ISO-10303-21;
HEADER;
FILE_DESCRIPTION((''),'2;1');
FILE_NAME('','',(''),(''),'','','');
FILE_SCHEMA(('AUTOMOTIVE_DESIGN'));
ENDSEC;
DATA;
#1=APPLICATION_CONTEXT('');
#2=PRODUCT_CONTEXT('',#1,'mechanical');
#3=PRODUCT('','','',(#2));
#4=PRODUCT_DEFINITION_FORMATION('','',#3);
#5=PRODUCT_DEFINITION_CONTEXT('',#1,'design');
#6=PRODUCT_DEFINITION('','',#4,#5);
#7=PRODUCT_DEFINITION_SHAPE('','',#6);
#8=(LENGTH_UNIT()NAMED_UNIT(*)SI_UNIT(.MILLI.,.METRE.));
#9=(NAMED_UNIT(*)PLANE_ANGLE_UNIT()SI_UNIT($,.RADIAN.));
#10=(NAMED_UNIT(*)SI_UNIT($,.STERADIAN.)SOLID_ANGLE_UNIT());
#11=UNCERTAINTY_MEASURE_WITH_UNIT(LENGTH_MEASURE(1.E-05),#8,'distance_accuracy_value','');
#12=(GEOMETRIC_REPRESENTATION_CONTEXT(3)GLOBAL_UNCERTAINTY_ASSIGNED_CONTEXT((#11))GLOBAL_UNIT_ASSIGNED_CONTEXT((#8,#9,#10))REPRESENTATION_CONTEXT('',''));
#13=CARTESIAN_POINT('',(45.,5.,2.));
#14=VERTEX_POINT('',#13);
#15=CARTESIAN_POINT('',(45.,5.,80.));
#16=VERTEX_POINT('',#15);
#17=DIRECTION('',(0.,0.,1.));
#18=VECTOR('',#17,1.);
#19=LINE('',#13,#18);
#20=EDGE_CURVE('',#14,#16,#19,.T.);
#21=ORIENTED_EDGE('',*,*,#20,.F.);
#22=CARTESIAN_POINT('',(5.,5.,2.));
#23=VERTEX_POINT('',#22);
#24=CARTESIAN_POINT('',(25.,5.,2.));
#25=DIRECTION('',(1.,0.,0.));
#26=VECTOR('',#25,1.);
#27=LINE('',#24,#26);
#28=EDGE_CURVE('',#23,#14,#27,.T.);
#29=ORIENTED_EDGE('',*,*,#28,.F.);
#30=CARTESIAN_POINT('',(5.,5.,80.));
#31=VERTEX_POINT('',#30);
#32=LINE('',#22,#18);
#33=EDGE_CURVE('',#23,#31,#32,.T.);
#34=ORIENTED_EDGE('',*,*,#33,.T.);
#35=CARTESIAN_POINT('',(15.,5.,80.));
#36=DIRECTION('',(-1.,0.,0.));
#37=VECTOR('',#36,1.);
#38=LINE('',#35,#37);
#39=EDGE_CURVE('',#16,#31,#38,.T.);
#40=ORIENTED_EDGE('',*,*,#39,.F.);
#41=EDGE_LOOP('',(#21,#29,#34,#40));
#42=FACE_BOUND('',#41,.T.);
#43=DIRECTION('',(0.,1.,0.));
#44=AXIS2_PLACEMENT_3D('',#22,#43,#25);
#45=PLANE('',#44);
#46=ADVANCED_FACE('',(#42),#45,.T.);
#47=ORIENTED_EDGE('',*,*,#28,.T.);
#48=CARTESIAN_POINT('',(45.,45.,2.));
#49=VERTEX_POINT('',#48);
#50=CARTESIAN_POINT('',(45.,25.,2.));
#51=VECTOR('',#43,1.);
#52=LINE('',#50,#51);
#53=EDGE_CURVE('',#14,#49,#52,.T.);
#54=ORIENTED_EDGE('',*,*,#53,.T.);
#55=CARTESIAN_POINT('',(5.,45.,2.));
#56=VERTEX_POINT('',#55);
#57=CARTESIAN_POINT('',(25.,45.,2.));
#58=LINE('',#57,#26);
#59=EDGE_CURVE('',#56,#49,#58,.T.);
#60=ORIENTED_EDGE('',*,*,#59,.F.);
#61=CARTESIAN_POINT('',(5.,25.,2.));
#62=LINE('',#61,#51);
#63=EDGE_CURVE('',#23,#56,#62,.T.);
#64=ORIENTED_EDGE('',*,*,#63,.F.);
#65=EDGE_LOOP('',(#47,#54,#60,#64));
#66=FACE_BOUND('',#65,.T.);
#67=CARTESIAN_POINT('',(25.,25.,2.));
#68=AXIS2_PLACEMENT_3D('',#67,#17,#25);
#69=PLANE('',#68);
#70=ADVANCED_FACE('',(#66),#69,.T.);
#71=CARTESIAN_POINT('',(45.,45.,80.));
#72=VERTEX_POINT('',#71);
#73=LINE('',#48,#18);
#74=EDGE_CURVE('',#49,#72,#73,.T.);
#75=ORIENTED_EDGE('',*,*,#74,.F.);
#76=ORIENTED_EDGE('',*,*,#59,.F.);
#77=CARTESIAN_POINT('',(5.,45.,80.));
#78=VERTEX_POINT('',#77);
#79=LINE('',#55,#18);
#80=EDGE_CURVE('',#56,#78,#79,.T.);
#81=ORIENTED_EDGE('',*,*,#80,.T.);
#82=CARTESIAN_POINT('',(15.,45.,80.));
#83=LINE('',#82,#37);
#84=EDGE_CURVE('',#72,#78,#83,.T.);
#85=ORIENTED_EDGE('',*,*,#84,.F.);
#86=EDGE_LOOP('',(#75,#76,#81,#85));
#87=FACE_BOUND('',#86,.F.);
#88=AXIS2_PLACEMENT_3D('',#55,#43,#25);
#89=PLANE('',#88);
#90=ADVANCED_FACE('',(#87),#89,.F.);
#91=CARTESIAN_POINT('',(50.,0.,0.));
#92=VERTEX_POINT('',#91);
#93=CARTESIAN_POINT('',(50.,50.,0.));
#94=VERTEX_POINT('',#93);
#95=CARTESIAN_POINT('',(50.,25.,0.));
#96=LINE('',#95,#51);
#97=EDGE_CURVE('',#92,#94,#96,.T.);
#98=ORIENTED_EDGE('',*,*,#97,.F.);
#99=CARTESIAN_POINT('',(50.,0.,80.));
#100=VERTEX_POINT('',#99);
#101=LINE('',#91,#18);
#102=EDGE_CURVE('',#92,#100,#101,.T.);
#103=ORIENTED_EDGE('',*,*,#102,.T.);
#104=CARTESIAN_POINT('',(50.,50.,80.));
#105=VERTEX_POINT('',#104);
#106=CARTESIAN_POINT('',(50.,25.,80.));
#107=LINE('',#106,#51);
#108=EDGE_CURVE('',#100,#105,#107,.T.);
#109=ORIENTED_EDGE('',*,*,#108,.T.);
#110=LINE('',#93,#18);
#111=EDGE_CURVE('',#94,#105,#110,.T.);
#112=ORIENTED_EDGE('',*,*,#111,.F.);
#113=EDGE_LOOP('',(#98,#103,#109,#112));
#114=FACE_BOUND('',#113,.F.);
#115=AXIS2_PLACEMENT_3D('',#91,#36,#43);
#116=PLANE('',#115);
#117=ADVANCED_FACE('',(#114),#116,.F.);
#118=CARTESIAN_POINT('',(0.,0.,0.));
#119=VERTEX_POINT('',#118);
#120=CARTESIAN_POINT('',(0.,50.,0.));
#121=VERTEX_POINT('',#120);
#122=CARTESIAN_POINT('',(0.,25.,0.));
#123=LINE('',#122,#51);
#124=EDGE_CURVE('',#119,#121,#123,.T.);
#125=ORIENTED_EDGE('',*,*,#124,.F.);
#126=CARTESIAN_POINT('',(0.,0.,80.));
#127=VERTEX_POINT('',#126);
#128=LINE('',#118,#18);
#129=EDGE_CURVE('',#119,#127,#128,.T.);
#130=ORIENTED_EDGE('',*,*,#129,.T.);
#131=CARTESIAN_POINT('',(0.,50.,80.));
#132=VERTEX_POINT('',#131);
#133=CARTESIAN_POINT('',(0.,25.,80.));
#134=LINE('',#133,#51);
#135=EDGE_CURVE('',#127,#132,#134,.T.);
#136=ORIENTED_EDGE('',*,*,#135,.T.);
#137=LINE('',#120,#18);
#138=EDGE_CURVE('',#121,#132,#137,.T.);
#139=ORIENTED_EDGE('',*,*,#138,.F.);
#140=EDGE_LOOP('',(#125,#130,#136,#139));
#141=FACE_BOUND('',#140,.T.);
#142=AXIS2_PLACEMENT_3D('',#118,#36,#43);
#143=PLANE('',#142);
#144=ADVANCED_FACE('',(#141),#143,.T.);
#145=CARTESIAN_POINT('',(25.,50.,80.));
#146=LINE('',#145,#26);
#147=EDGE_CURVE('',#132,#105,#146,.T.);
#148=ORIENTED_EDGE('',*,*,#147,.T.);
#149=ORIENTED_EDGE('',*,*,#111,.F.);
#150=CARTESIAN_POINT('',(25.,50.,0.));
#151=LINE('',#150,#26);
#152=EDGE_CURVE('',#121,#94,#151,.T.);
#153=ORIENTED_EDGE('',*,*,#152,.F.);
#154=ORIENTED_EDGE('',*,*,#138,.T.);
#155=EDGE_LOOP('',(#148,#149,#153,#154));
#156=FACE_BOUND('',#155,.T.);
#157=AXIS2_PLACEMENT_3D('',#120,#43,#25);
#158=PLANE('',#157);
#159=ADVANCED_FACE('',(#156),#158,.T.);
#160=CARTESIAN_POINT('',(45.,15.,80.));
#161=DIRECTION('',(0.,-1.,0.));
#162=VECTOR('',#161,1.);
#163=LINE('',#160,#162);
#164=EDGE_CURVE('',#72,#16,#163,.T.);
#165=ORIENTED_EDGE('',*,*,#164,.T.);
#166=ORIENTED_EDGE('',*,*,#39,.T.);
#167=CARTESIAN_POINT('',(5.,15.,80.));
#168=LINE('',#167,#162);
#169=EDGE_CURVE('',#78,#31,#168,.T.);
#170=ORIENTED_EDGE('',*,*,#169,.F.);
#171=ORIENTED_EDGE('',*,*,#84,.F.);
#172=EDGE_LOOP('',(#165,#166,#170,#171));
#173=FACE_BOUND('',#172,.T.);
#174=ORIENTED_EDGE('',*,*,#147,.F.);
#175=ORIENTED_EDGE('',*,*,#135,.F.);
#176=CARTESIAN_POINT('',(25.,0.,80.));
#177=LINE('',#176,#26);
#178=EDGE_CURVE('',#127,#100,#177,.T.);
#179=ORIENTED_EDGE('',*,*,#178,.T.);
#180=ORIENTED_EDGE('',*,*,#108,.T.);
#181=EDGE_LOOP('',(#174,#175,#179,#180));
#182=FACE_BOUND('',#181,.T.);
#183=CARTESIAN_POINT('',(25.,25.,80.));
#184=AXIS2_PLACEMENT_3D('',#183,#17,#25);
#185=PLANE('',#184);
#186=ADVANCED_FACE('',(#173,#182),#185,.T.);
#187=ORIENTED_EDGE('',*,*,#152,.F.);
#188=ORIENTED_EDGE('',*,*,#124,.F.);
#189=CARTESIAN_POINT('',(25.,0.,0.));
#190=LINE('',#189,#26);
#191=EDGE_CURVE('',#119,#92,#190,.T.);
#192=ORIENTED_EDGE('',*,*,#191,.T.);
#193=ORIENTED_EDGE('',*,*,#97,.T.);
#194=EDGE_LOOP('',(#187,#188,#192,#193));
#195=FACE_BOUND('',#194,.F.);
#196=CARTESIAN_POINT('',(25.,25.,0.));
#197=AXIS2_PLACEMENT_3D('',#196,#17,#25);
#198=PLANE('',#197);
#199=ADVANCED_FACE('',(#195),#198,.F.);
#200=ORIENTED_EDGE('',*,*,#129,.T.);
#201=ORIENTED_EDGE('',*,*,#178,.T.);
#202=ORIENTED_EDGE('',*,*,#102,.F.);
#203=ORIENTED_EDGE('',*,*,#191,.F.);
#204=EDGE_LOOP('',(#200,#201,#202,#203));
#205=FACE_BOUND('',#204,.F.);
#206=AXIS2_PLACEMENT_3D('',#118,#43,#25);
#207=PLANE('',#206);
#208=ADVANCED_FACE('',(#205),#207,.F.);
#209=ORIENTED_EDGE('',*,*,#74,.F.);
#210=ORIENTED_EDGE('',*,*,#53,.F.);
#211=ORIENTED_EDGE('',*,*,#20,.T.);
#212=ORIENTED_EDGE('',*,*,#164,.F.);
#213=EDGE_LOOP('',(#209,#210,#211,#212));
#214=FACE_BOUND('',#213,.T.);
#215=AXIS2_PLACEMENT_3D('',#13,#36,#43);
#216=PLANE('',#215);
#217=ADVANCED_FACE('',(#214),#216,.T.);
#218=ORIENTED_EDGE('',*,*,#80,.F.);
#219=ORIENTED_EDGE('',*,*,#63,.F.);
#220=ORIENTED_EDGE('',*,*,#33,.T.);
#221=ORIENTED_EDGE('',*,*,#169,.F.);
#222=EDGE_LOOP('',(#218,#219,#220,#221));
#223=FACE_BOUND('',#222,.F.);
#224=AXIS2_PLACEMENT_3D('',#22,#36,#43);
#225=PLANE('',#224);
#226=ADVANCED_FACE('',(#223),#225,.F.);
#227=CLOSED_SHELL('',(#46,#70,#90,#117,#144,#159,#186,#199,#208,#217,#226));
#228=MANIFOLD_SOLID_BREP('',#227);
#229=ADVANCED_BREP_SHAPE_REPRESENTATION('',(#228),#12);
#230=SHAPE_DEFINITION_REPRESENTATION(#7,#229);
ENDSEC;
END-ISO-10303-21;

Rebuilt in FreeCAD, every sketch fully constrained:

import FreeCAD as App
import Part
import Sketcher

V = App.Vector


def add_polygon(sketch, points):
    """Adds a closed chain of lines whose ends are joined by coincident constraints."""
    first, n = sketch.GeometryCount, len(points)
    for a, b in zip(points, points[1:] + points[:1]):
        sketch.addGeometry(Part.LineSegment(App.Vector(*a, 0), App.Vector(*b, 0)), False)
    for i in range(n):
        sketch.addConstraint(Sketcher.Constraint("Coincident", first + i, 2, first + (i + 1) % n, 1))

doc = App.newDocument("Part")
body = doc.addObject("PartDesign::Body", "Body")

sketch1 = body.newObject("Sketcher::SketchObject", "Sketch")
sketch1.AttachmentSupport = (doc.getObject("XY_Plane"), [""])
sketch1.MapMode = "FlatFace"
sketch1.AttachmentOffset = App.Placement(V(0, 0, 2), App.Rotation())
add_polygon(sketch1, [(5, 45), (5, 5), (45, 5), (45, 45)])
sketch1.addConstraint([
    Sketcher.Constraint("Vertical", 0),
    Sketcher.Constraint("Horizontal", 1),
    Sketcher.Constraint("Vertical", 2),
    Sketcher.Constraint("Horizontal", 3),
    Sketcher.Constraint("Equal", 3, 0),
    Sketcher.Constraint("DistanceX", 1, 1, 1, 2, 40.0),
    Sketcher.Constraint("DistanceX", -1, 1, 0, 2, 5.0),
    Sketcher.Constraint("DistanceY", -1, 1, 0, 2, 5.0),
])
pad1 = body.newObject("PartDesign::Pad", "Pad")
pad1.Profile = sketch1
pad1.Length = 80
body2 = doc.addObject("PartDesign::Body", "Body001")

sketch2 = body2.newObject("Sketcher::SketchObject", "Sketch001")
sketch2.AttachmentSupport = (doc.getObject("XY_Plane001"), [""])
sketch2.MapMode = "FlatFace"
add_polygon(sketch2, [(0, 50), (0, 0), (50, 0), (50, 50)])
sketch2.addConstraint([
    Sketcher.Constraint("Vertical", 0),
    Sketcher.Constraint("Horizontal", 1),
    Sketcher.Constraint("Vertical", 2),
    Sketcher.Constraint("Horizontal", 3),
    Sketcher.Constraint("Coincident", 0, 2, -1, 1),
    Sketcher.Constraint("Equal", 3, 0),
    Sketcher.Constraint("DistanceX", 1, 1, 1, 2, 50.0),
])
pad2 = body2.newObject("PartDesign::Pad", "Pad001")
pad2.Profile = sketch2
pad2.Length = 80
doc.recompute()

boolean = body2.newObject("PartDesign::Boolean", "Boolean")
boolean.Type = "Cut"
boolean.addObjects([body])

doc.recompute()
